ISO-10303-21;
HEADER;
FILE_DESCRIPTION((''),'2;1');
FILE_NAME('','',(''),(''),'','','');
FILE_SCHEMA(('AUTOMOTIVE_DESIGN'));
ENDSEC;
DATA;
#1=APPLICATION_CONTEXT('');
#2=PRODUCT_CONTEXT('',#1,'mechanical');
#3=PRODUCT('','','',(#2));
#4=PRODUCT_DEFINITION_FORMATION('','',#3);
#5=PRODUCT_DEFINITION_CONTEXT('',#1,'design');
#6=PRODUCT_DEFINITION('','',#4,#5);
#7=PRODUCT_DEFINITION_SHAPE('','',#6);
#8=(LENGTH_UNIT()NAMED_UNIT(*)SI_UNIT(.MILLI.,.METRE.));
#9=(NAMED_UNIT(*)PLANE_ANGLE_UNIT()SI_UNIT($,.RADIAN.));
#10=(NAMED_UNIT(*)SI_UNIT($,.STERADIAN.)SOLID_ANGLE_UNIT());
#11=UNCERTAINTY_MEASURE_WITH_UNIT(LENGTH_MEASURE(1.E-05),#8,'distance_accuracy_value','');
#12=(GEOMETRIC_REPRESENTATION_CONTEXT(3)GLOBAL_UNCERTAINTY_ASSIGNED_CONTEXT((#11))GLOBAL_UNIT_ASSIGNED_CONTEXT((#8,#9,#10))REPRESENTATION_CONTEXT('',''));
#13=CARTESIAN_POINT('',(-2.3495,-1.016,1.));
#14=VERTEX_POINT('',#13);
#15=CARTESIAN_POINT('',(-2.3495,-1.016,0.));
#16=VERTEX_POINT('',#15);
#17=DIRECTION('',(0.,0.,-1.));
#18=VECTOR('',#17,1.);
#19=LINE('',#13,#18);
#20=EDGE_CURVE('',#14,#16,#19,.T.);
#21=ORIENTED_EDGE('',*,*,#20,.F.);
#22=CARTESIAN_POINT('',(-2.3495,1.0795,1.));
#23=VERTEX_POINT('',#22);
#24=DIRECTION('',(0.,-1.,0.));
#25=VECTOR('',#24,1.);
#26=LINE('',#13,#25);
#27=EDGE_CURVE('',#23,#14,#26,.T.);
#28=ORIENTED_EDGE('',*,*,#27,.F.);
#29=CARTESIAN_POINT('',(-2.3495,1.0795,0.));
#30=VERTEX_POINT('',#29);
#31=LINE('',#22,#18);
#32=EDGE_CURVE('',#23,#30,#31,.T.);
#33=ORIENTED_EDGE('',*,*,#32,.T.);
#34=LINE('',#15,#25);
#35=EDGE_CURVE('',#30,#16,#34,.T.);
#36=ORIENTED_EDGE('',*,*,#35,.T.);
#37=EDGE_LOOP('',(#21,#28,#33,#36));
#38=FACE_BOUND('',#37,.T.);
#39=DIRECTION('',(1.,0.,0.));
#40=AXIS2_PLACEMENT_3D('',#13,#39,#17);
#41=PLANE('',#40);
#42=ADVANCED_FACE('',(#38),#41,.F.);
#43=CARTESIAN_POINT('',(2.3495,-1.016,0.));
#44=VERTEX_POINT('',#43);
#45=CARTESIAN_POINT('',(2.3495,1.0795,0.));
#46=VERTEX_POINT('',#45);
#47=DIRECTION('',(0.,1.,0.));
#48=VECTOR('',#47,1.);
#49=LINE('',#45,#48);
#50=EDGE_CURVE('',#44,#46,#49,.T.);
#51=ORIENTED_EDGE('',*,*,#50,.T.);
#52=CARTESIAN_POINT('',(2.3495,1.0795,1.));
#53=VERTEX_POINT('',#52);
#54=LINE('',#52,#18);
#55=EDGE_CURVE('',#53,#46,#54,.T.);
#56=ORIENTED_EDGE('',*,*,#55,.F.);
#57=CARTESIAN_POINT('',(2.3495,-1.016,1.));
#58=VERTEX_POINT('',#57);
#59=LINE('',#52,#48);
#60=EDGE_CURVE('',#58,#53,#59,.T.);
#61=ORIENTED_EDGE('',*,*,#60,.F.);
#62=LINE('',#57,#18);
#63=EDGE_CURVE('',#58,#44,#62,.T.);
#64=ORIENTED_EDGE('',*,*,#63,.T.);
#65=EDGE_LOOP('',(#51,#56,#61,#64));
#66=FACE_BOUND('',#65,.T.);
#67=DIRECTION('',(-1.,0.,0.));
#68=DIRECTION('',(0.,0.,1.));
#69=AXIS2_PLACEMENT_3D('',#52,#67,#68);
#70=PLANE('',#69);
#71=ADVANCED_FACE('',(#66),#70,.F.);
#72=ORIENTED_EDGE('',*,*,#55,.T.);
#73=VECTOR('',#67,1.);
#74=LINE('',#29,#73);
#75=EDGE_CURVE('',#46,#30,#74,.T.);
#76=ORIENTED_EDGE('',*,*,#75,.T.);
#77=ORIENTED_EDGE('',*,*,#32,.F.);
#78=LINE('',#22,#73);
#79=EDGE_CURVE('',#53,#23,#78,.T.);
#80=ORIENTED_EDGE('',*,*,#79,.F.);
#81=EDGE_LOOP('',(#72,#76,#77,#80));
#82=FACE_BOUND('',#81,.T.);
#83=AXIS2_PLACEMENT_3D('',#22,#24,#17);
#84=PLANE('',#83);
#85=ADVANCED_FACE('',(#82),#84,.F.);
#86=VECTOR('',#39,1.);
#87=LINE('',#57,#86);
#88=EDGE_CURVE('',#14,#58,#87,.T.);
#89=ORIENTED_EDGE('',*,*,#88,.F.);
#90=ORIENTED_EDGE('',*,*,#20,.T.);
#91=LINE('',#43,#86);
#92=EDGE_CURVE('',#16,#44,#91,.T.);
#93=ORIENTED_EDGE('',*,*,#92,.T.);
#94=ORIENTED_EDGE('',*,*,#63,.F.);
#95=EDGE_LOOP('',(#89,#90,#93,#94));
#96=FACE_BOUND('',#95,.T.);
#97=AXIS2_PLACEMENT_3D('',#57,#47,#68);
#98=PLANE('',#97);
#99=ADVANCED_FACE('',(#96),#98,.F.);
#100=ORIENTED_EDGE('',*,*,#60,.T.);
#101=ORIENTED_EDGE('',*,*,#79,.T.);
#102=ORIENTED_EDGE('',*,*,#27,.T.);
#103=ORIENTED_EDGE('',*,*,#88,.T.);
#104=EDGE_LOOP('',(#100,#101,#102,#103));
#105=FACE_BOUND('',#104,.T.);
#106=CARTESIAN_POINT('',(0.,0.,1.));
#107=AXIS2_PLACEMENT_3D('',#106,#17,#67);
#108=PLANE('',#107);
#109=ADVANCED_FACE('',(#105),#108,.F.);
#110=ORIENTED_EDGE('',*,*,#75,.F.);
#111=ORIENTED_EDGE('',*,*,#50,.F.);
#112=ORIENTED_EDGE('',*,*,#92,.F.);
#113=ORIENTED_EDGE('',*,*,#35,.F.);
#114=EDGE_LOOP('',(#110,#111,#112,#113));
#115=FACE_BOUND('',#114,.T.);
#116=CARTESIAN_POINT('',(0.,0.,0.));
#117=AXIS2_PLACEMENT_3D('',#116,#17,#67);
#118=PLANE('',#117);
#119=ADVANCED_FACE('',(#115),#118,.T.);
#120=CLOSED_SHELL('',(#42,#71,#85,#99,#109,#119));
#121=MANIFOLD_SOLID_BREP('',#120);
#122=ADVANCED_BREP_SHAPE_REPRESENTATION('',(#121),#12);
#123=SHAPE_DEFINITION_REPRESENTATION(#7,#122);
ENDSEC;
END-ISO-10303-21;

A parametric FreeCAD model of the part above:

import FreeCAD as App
import Part
import Sketcher
Q = App.Units.Quantity


def add_polygon(sketch, points):
    """Adds a closed chain of lines whose ends are joined by coincident constraints."""
    first, n = sketch.GeometryCount, len(points)
    for a, b in zip(points, points[1:] + points[:1]):
        sketch.addGeometry(Part.LineSegment(App.Vector(*a, 0), App.Vector(*b, 0)), False)
    for i in range(n):
        sketch.addConstraint(Sketcher.Constraint("Coincident", first + i, 2, first + (i + 1) % n, 1))

doc = App.newDocument("Part")
body = doc.addObject("PartDesign::Body", "Body")

sketch1 = body.newObject("Sketcher::SketchObject", "Sketch")
sketch1.AttachmentSupport = (doc.getObject("XY_Plane"), [""])
sketch1.MapMode = "FlatFace"
add_polygon(sketch1, [(-2.3, 1.1), (-2.3, -1), (2.3, -1), (2.3, 1.1)])
sketch1.addConstraint([
    Sketcher.Constraint("Vertical", 0),
    Sketcher.Constraint("Horizontal", 1),
    Sketcher.Constraint("Vertical", 2),
    Sketcher.Constraint("Horizontal", 3),
    Sketcher.Constraint("DistanceX", 1, 1, 1, 2, Q("4.699 mm")),
    Sketcher.Constraint("DistanceY", 0, 2, 0, 1, Q("2.0955 mm")),
    Sketcher.Constraint("DistanceY", 0, 2, -1, 1, Q("1.016 mm")),
    Sketcher.Constraint("DistanceX", 0, 2, -1, 1, Q("2.3495 mm")),
])
pad1 = body.newObject("PartDesign::Pad", "Pad")
pad1.Profile = sketch1
pad1.Length = 1

doc.recompute()
